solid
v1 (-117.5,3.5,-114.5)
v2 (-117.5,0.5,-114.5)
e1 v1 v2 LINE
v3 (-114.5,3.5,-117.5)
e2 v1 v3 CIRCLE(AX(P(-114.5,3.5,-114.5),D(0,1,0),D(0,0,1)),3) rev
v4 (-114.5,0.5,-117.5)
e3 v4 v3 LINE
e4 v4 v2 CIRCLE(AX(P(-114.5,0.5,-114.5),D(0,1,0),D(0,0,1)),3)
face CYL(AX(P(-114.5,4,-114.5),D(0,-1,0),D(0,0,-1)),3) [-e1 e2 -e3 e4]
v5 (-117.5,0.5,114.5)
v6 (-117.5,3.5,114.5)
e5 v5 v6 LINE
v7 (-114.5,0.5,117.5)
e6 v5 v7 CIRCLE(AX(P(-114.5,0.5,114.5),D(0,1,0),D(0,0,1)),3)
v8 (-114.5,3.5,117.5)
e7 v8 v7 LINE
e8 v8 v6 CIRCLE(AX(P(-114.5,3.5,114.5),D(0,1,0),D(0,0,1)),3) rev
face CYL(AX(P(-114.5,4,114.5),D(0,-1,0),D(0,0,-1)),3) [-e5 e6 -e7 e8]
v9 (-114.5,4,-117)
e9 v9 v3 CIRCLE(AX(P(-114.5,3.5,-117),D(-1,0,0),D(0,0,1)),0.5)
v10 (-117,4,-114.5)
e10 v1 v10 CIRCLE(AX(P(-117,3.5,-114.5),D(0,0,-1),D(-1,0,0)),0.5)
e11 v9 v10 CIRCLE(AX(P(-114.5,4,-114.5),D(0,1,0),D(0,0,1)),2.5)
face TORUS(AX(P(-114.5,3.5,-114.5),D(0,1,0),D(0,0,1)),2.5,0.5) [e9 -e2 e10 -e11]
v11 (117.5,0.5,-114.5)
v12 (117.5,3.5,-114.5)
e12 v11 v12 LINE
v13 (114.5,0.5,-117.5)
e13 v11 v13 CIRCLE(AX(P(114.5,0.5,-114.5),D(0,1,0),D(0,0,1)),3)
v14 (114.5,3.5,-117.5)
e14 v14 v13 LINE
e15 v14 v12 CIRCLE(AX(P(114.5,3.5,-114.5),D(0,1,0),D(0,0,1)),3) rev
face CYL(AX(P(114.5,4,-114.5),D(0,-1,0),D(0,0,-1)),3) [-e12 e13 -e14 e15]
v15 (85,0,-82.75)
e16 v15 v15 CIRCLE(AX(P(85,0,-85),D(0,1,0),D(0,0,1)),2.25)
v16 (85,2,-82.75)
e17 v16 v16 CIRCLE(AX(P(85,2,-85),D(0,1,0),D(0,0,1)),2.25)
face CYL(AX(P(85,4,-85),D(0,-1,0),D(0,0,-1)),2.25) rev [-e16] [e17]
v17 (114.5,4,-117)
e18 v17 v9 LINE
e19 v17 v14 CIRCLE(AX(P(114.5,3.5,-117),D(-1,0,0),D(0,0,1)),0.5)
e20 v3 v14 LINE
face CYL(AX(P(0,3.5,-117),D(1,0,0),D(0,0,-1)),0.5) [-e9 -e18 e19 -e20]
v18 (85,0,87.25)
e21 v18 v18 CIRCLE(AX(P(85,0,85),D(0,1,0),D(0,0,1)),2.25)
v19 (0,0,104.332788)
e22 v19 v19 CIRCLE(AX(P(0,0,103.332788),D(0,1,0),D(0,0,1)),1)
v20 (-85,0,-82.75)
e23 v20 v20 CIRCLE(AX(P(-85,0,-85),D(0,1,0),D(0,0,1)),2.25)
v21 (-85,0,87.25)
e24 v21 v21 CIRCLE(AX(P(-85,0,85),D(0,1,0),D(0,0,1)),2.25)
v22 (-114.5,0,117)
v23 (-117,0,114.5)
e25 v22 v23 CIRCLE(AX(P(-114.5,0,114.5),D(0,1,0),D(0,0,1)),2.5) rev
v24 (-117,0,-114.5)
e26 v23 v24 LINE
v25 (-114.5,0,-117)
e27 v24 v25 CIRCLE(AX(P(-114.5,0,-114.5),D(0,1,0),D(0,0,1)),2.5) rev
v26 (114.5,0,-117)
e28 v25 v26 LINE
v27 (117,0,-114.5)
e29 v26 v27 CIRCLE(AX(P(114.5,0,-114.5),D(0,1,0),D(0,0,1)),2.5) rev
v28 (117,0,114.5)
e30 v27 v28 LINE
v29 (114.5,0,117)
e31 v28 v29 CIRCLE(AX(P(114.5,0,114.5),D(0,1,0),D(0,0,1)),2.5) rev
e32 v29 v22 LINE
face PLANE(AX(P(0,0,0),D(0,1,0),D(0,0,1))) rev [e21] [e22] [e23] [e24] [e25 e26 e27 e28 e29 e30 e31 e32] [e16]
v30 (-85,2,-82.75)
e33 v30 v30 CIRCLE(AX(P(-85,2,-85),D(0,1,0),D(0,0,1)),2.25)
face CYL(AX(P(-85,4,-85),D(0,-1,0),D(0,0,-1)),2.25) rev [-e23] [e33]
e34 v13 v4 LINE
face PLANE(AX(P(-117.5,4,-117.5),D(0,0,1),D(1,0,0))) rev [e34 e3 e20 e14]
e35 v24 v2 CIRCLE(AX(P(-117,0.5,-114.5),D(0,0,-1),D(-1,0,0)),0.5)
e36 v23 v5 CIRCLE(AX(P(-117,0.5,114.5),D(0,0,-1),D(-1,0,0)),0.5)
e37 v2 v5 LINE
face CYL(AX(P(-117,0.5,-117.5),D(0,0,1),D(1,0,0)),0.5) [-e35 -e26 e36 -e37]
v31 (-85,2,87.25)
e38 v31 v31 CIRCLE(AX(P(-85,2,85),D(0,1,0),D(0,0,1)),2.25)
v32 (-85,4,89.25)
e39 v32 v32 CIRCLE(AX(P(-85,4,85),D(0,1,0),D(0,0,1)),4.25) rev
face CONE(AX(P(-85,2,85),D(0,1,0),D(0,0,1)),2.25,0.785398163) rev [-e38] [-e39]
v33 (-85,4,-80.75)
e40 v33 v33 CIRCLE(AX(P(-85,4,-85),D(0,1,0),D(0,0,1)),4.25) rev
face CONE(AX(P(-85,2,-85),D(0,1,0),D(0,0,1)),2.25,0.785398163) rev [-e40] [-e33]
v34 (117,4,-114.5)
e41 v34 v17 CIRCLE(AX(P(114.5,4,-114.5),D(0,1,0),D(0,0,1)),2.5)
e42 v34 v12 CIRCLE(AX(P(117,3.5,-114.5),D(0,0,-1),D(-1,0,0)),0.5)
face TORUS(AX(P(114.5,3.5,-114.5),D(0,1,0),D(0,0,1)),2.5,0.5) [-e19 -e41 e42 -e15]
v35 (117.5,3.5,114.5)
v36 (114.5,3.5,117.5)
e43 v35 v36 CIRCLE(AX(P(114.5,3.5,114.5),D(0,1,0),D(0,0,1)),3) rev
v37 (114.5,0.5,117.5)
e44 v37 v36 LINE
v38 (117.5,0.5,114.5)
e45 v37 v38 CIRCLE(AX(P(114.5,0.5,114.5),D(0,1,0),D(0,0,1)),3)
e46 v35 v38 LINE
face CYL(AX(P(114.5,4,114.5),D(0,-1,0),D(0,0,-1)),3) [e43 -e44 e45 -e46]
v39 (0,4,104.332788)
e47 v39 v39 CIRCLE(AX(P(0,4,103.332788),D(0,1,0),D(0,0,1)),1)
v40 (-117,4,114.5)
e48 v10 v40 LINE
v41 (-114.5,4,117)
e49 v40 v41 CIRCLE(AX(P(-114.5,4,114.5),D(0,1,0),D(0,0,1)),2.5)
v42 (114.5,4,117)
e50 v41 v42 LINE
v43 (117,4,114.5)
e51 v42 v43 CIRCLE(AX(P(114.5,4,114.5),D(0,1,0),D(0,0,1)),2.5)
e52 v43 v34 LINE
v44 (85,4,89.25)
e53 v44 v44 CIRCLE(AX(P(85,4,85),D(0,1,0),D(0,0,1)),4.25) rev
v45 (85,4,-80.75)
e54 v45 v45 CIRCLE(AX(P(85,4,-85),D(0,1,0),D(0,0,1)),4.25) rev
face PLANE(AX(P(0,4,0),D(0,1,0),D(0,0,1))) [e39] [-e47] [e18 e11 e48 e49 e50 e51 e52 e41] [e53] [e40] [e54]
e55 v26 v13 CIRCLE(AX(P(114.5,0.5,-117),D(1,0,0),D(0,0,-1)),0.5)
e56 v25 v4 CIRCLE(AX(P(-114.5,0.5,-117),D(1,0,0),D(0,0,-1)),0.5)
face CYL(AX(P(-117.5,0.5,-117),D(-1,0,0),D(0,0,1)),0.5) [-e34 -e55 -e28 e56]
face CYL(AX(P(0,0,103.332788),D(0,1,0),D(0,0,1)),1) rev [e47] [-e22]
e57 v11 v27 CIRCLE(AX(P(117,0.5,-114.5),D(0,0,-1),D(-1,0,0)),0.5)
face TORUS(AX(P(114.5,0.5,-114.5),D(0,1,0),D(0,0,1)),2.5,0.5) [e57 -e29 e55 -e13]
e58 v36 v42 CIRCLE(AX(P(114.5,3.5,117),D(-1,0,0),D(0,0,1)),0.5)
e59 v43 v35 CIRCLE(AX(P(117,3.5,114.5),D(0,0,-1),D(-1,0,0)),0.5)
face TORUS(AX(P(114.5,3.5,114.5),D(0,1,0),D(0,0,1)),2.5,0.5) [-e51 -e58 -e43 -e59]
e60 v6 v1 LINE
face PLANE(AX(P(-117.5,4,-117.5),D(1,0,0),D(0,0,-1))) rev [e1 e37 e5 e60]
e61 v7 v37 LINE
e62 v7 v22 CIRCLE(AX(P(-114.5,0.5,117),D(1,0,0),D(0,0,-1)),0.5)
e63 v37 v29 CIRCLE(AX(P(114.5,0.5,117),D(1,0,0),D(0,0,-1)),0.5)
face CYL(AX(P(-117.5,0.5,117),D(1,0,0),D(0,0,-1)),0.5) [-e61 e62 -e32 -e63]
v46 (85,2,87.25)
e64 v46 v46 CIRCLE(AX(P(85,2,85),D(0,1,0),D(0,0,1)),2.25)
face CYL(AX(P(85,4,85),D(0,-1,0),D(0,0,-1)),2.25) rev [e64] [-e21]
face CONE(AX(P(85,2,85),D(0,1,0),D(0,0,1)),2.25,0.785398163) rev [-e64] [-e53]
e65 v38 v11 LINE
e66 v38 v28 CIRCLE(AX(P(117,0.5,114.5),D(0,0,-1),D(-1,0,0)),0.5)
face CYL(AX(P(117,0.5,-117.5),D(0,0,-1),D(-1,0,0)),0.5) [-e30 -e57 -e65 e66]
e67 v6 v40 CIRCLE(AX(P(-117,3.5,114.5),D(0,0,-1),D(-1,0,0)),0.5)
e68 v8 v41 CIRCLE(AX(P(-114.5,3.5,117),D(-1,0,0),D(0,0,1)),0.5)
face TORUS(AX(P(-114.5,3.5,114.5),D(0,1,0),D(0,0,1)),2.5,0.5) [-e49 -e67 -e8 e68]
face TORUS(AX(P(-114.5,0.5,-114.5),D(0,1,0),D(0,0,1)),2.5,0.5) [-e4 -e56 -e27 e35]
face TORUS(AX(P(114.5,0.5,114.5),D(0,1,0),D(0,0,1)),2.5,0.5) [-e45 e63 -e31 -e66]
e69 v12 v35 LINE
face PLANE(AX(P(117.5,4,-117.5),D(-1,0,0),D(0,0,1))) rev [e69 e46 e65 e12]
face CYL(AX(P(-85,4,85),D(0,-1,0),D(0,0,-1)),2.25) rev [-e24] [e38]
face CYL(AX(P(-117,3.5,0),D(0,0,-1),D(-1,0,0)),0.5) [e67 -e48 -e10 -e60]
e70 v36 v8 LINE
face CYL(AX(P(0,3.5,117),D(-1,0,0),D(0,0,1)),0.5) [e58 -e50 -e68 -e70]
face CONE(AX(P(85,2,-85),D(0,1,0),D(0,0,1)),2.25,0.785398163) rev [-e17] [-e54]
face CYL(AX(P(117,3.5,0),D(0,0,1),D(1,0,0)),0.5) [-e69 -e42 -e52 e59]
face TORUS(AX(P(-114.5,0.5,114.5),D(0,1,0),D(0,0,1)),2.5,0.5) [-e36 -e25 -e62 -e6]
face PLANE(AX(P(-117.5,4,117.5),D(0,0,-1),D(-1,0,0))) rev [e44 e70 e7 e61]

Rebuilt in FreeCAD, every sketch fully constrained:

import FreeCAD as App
import Part
import Sketcher
from FreeCAD import Vector


def edges_at(feature, points):
    """Names of the edges that pass closest to the given points."""
    edges = feature.Shape.Edges
    near = lambda p: min(range(len(edges)), key=lambda i: edges[i].distToShape(Part.Vertex(*p))[0])
    return sorted({f"Edge{near(p) + 1}" for p in points})


def add_polygon(sketch, points):
    """Adds a closed chain of lines whose ends are joined by coincident constraints."""
    first, n = sketch.GeometryCount, len(points)
    for a, b in zip(points, points[1:] + points[:1]):
        sketch.addGeometry(Part.LineSegment(App.Vector(*a, 0), App.Vector(*b, 0)), False)
    for i in range(n):
        sketch.addConstraint(Sketcher.Constraint("Coincident", first + i, 2, first + (i + 1) % n, 1))

doc = App.newDocument("Part")
params = doc.addObject("Spreadsheet::Sheet", "Params")
for row, (alias, value) in enumerate([
    ("sketch1_diameter", "4.5 mm"),
    ("sketch1_width", "235 mm"),
    ("pad1_length", "4 mm"),
    ("chamfer_size", "2 mm"),
    ("fillet_radius", "3 mm"),
    ("fillet2_radius", "0.5 mm"),
    ("sketch2_diameter", "2 mm"),
    ("pocket1_length", "4 mm"),
], start=1):
    params.set(f"A{row}", alias)
    params.set(f"B{row}", "=" + value)
    params.setAlias(f"B{row}", alias)

body = doc.addObject("PartDesign::Body", "Body")

# Sketch on XZ plane
sketch1 = doc.addObject("Sketcher::SketchObject", "Sketch")
body.addObject(sketch1)
sketch1.AttachmentSupport = (doc.XZ_Plane, [""])
sketch1.MapMode = "FlatFace"
add_polygon(sketch1, [(-117.5, -117.5), (-117.5, 117.5), (117.5, 117.5), (117.5, -117.5)])  # lines 0-3
sketch1.addGeometry(Part.Circle(Vector(-85, 85, 0), Vector(0, 0, 1), 2.2), False)  # 4
sketch1.addGeometry(Part.Circle(Vector(85, 85, 0), Vector(0, 0, 1), 2.2), False)  # 5
sketch1.addGeometry(Part.Circle(Vector(-85, -85, 0), Vector(0, 0, 1), 2.2), False)  # 6
sketch1.addGeometry(Part.Circle(Vector(85, -85, 0), Vector(0, 0, 1), 2.2), False)  # 7
sketch1.addConstraint(Sketcher.Constraint("Vertical", 0))
sketch1.addConstraint(Sketcher.Constraint("Horizontal", 1))
sketch1.addConstraint(Sketcher.Constraint("Vertical", 2))
sketch1.addConstraint(Sketcher.Constraint("Horizontal", 3))
sketch1.addConstraint(Sketcher.Constraint("Equal", 4, 5))
sketch1.addConstraint(Sketcher.Constraint("Equal", 5, 6))
sketch1.addConstraint(Sketcher.Constraint("Equal", 6, 7))
sketch1.addConstraint(Sketcher.Constraint("Symmetric", 5, 3, 6, 3, -1, 1))
sketch1.addConstraint(Sketcher.Constraint("Symmetric", 4, 3, 7, 3, -1, 1))
sketch1.addConstraint(Sketcher.Constraint("Symmetric", 0, 2, 2, 2, -1, 1))
sketch1.addConstraint(Sketcher.Constraint("Symmetric", 4, 3, 5, 3, -2))
sketch1.addConstraint(Sketcher.Constraint("Equal", 3, 0))
sketch1.addConstraint(Sketcher.Constraint("Diameter", 4, 4.5))
sketch1.addConstraint(Sketcher.Constraint("DistanceX", 1, 1, 1, 2, 235.0))
sketch1.addConstraint(Sketcher.Constraint("DistanceX", 4, 3, -1, 1, 85.0))
sketch1.addConstraint(Sketcher.Constraint("DistanceY", -1, 1, 4, 3, 85.0))
sketch1.setExpression("Constraints[16]", "Params.sketch1_diameter")
sketch1.setExpression("Constraints[17]", "Params.sketch1_width")
pad1 = doc.addObject("PartDesign::Pad", "Pad")
body.addObject(pad1)
pad1.Profile = sketch1
pad1.setExpression("Length", "Params.pad1_length")
pad1.Reversed = True
doc.recompute()

chamfer = doc.addObject("PartDesign::Chamfer", "Chamfer")
body.addObject(chamfer)
chamfer.Base = (pad1, edges_at(pad1, [
    (85, 4, -87.25),
    (-85, 4, -87.25),
    (-85, 4, 82.75),
    (85, 4, 82.75),
]))
chamfer.setExpression("Size", "Params.chamfer_size")
doc.recompute()

fillet = doc.addObject("PartDesign::Fillet", "Fillet")
body.addObject(fillet)
fillet.Base = (chamfer, edges_at(chamfer, [
    (117.5, 2, 117.5),
    (-117.5, 2, 117.5),
    (-117.5, 2, -117.5),
    (117.5, 2, -117.5),
]))
fillet.setExpression("Radius", "Params.fillet_radius")
doc.recompute()

fillet2 = doc.addObject("PartDesign::Fillet", "Fillet001")
body.addObject(fillet2)
fillet2.Base = (fillet, edges_at(fillet, [
    (117.5, 0, 0),
    (117.5, 4, 0),
    (0, 0, 117.5),
    (-117.5, 0, 0),
    (0, 0, -117.5),
    (116.621, 0, -116.621),
    (-116.621, 0, -116.621),
    (-116.621, 0, 116.621),
    (116.621, 0, 116.621),
    (0, 4, 117.5),
    (0, 4, -117.5),
    (-117.5, 4, 0),
    (116.621, 4, -116.621),
    (-116.621, 4, -116.621),
    (-116.621, 4, 116.621),
    (116.621, 4, 116.621),
]))
fillet2.setExpression("Radius", "Params.fillet2_radius")

# Sketch on XZ plane
sketch2 = doc.addObject("Sketcher::SketchObject", "Sketch001")
body.addObject(sketch2)
sketch2.AttachmentSupport = (doc.XZ_Plane, [""])
sketch2.MapMode = "FlatFace"
sketch2.AttachmentOffset = App.Placement(Vector(0, 0, -4), App.Rotation())
sketch2.addGeometry(Part.Circle(Vector(0, 103.3, 0), Vector(0, 0, 1), 1), False)
sketch2.addConstraint(Sketcher.Constraint("PointOnObject", 0, 3, -2))
sketch2.addConstraint(Sketcher.Constraint("Diameter", 0, 2.0))
sketch2.addConstraint(Sketcher.Constraint("DistanceY", -1, 1, 0, 3, 103.332788))
sketch2.setExpression("Constraints[1]", "Params.sketch2_diameter")
pocket1 = doc.addObject("PartDesign::Pocket", "Pocket")
body.addObject(pocket1)
pocket1.Profile = sketch2
pocket1.setExpression("Length", "Params.pocket1_length")
pocket1.Reversed = True

doc.recompute()
